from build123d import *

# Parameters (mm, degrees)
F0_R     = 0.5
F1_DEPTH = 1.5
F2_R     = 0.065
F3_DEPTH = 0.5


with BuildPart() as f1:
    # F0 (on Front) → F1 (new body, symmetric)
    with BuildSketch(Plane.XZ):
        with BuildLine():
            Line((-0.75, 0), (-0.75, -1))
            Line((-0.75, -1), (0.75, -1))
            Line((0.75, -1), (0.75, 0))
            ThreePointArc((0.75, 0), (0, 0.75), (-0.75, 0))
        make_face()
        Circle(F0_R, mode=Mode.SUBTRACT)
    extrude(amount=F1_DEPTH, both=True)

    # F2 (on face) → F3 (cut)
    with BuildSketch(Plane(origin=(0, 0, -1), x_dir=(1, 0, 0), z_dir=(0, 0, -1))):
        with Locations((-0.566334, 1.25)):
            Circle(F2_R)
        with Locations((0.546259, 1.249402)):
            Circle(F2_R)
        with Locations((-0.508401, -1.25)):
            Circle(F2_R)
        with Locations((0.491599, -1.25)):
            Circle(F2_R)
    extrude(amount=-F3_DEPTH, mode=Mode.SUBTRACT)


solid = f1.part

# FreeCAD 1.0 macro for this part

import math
import FreeCAD as App
import Part
import Sketcher

V = App.Vector

doc = App.newDocument("Part")
body = doc.addObject("PartDesign::Body", "Body")

sketch1 = body.newObject("Sketcher::SketchObject", "Sketch")
sketch1.AttachmentSupport = (doc.getObject("XZ_Plane"), [""])
sketch1.MapMode = "FlatFace"
sketch1.addGeometry(Part.LineSegment(V(-0.8, 0, 0), V(-0.8, -1, 0)), False)
sketch1.addGeometry(Part.LineSegment(V(-0.8, -1, 0), V(0.8, -1, 0)), False)
sketch1.addGeometry(Part.LineSegment(V(0.8, -1, 0), V(0.8, 0, 0)), False)
sketch1.addGeometry(Part.ArcOfCircle(Part.Circle(V(0, 0, 0), V(0, 0, 1), 0.8), math.radians(0), math.radians(180)), False)
sketch1.addGeometry(Part.Circle(V(0, 0, 0), V(0, 0, 1), 0.5), False)
sketch1.addConstraint(Sketcher.Constraint("Coincident", 0, 2, 1, 1))
sketch1.addConstraint(Sketcher.Constraint("Coincident", 1, 2, 2, 1))
sketch1.addConstraint(Sketcher.Constraint("Tangent", 2, 2, 3, 1))
sketch1.addConstraint(Sketcher.Constraint("Tangent", 3, 2, 0, 1))
sketch1.addConstraint(Sketcher.Constraint("Vertical", 0))
sketch1.addConstraint(Sketcher.Constraint("Horizontal", 1))
sketch1.addConstraint(Sketcher.Constraint("Vertical", 2))
sketch1.addConstraint(Sketcher.Constraint("Coincident", 3, 3, -1, 1))
sketch1.addConstraint(Sketcher.Constraint("Coincident", 4, 3, -1, 1))
sketch1.addConstraint(Sketcher.Constraint("Diameter", 4, 1.0))
sketch1.addConstraint(Sketcher.Constraint("DistanceY", 0, 2, 0, 1, 1.0))
sketch1.addConstraint(Sketcher.Constraint("Radius", 3, 0.75))
pad1 = body.newObject("PartDesign::Pad", "Pad")
pad1.Profile = sketch1
pad1.Length = 3
pad1.Midplane = True

sketch2 = body.newObject("Sketcher::SketchObject", "Sketch001")
sketch2.AttachmentSupport = (doc.getObject("XY_Plane"), [""])
sketch2.MapMode = "FlatFace"
sketch2.AttachmentOffset = App.Placement(V(0, 0, -1), App.Rotation())
sketch2.addGeometry(Part.Circle(V(-0.57, -1.25, 0), V(0, 0, 1), 0.07), False)
sketch2.addGeometry(Part.Circle(V(0.55, -1.25, 0), V(0, 0, 1), 0.07), False)
sketch2.addGeometry(Part.Circle(V(-0.51, 1.25, 0), V(0, 0, 1), 0.07), False)
sketch2.addGeometry(Part.Circle(V(0.49, 1.25, 0), V(0, 0, 1), 0.07), False)
sketch2.addConstraint(Sketcher.Constraint("Equal", 0, 1))
sketch2.addConstraint(Sketcher.Constraint("Equal", 1, 2))
sketch2.addConstraint(Sketcher.Constraint("Equal", 2, 3))
sketch2.addConstraint(Sketcher.Constraint("Horizontal", 2, 3, 3, 3))
sketch2.addConstraint(Sketcher.Constraint("Diameter", 0, 0.13))
sketch2.addConstraint(Sketcher.Constraint("DistanceX", 2, 3, 3, 3, 1.0))
sketch2.addConstraint(Sketcher.Constraint("DistanceY", 0, 3, 2, 3, 2.5))
sketch2.addConstraint(Sketcher.Constraint("DistanceY", 0, 3, -1, 1, 1.25))
sketch2.addConstraint(Sketcher.Constraint("DistanceY", 1, 3, -1, 1, 1.249402))
sketch2.addConstraint(Sketcher.Constraint("DistanceX", 2, 3, -1, 1, 0.508401))
sketch2.addConstraint(Sketcher.Constraint("DistanceX", -1, 1, 1, 3, 0.546259))
sketch2.addConstraint(Sketcher.Constraint("DistanceX", 0, 3, -1, 1, 0.566334))
pocket1 = body.newObject("PartDesign::Pocket", "Pocket")
pocket1.Profile = sketch2
pocket1.Length = 0.5
pocket1.Reversed = True

doc.recompute()
